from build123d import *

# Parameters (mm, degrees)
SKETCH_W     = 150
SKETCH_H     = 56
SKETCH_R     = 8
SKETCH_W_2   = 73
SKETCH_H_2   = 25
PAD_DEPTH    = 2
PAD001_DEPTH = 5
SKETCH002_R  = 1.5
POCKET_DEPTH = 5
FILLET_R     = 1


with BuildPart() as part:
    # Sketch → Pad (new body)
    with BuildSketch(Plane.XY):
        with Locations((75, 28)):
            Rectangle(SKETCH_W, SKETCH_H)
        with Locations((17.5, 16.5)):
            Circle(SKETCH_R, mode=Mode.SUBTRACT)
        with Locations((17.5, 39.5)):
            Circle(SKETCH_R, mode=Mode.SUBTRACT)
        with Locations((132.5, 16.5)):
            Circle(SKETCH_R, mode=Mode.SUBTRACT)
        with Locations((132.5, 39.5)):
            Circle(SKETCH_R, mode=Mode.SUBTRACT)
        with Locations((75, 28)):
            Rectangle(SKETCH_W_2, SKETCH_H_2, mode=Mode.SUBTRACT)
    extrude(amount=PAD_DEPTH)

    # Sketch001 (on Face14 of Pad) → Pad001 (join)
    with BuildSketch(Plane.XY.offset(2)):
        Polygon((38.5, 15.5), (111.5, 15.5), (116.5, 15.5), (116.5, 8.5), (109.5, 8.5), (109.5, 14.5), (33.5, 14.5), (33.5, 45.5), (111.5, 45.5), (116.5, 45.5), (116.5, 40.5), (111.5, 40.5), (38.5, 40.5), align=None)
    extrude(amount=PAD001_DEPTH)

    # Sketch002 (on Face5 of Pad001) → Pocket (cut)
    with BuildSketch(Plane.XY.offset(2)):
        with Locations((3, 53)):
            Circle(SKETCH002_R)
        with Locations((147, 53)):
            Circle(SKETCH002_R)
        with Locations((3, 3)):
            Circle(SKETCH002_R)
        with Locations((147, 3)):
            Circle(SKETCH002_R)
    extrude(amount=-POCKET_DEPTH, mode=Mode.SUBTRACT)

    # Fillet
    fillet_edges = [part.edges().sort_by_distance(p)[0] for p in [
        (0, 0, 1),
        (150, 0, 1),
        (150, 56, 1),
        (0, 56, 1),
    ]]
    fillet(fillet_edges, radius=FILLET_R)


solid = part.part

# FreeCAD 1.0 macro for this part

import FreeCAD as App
import Part
import Sketcher

V = App.Vector


def edges_at(feature, points):
    """Names of the edges that pass closest to the given points."""
    edges = feature.Shape.Edges
    near = lambda p: min(range(len(edges)), key=lambda i: edges[i].distToShape(Part.Vertex(*p))[0])
    return sorted({f"Edge{near(p) + 1}" for p in points})


def add_polygon(sketch, points):
    """Adds a closed chain of lines whose ends are joined by coincident constraints."""
    first, n = sketch.GeometryCount, len(points)
    for a, b in zip(points, points[1:] + points[:1]):
        sketch.addGeometry(Part.LineSegment(App.Vector(*a, 0), App.Vector(*b, 0)), False)
    for i in range(n):
        sketch.addConstraint(Sketcher.Constraint("Coincident", first + i, 2, first + (i + 1) % n, 1))

doc = App.newDocument("Part")
body = doc.addObject("PartDesign::Body", "Body")

# Sketch on XY plane
sketch1 = body.newObject("Sketcher::SketchObject", "Sketch")
sketch1.AttachmentSupport = (doc.getObject("XY_Plane"), [""])
sketch1.MapMode = "FlatFace"
add_polygon(sketch1, [(0, 56), (0, 0), (150, 0), (150, 56)])  # lines 0-3
sketch1.addGeometry(Part.Circle(V(17.5, 16.5, 0), V(0, 0, 1), 8), False)  # 4
sketch1.addGeometry(Part.Circle(V(132.5, 16.5, 0), V(0, 0, 1), 8), False)  # 5
sketch1.addGeometry(Part.Circle(V(17.5, 39.5, 0), V(0, 0, 1), 8), False)  # 6
add_polygon(sketch1, [(111.5, 15.5), (38.5, 15.5), (38.5, 40.5), (111.5, 40.5)])  # lines 7-10
sketch1.addGeometry(Part.Circle(V(132.5, 39.5, 0), V(0, 0, 1), 8), False)  # 11
sketch1.addConstraint([
    Sketcher.Constraint("Vertical", 0),
    Sketcher.Constraint("Horizontal", 1),
    Sketcher.Constraint("Vertical", 2),
    Sketcher.Constraint("Horizontal", 3),
    Sketcher.Constraint("Horizontal", 7),
    Sketcher.Constraint("Vertical", 8),
    Sketcher.Constraint("Horizontal", 9),
    Sketcher.Constraint("Vertical", 10),
    Sketcher.Constraint("Coincident", 0, 2, -1, 1),
    Sketcher.Constraint("Equal", 4, 5),
    Sketcher.Constraint("Equal", 5, 6),
    Sketcher.Constraint("Equal", 6, 11),
    Sketcher.Constraint("Horizontal", 4, 3, 5, 3),
    Sketcher.Constraint("Horizontal", 6, 3, 11, 3),
    Sketcher.Constraint("Vertical", 4, 3, 6, 3),
    Sketcher.Constraint("Vertical", 5, 3, 11, 3),
    Sketcher.Constraint("Diameter", 4, 16.0),
    Sketcher.Constraint("DistanceX", 1, 1, 1, 2, 150.0),
    Sketcher.Constraint("DistanceX", 7, 2, 7, 1, 73.0),
    Sketcher.Constraint("DistanceY", 0, 2, 0, 1, 56.0),
    Sketcher.Constraint("DistanceY", 8, 1, 8, 2, 25.0),
    Sketcher.Constraint("DistanceX", 4, 3, 5, 3, 115.0),
    Sketcher.Constraint("DistanceY", 4, 3, 6, 3, 23.0),
    Sketcher.Constraint("DistanceX", 4, 3, 7, 2, 21.0),
    Sketcher.Constraint("DistanceY", 7, 2, 4, 3, 1.0),
    Sketcher.Constraint("DistanceX", -1, 1, 4, 3, 17.5),
    Sketcher.Constraint("DistanceY", -1, 1, 4, 3, 16.5),
])
pad1 = body.newObject("PartDesign::Pad", "Pad")
pad1.Profile = sketch1
pad1.Length = 2

# Sketch on XY plane
sketch2 = body.newObject("Sketcher::SketchObject", "Sketch001")
sketch2.AttachmentSupport = (doc.getObject("XY_Plane"), [""])
sketch2.MapMode = "FlatFace"
sketch2.AttachmentOffset = App.Placement(V(0, 0, 2), App.Rotation())
add_polygon(sketch2, [(116.5, 15.5), (38.5, 15.5), (38.5, 40.5), (116.5, 40.5), (116.5, 45.5), (33.5, 45.5), (33.5, 14.5), (109.5, 14.5), (109.5, 8.5), (116.5, 8.5)])  # lines 0-9
sketch2.addConstraint([
    Sketcher.Constraint("Horizontal", 0),
    Sketcher.Constraint("Vertical", 1),
    Sketcher.Constraint("Horizontal", 2),
    Sketcher.Constraint("Vertical", 3),
    Sketcher.Constraint("Horizontal", 4),
    Sketcher.Constraint("Vertical", 5),
    Sketcher.Constraint("Horizontal", 6),
    Sketcher.Constraint("Vertical", 7),
    Sketcher.Constraint("Horizontal", 8),
    Sketcher.Constraint("Vertical", 9),
    Sketcher.Constraint("Vertical", 3, 2, 8, 2),
    Sketcher.Constraint("Equal", 8, 9),
    Sketcher.Constraint("DistanceX", 0, 2, 0, 1, 78.0),
    Sketcher.Constraint("DistanceX", 4, 2, 4, 1, 83.0),
    Sketcher.Constraint("DistanceX", 6, 1, 6, 2, 76.0),
    Sketcher.Constraint("DistanceY", 1, 1, 1, 2, 25.0),
    Sketcher.Constraint("DistanceY", 3, 1, 3, 2, 5.0),
    Sketcher.Constraint("DistanceY", 5, 2, 5, 1, 31.0),
    Sketcher.Constraint("DistanceX", -1, 1, 0, 2, 38.5),
    Sketcher.Constraint("DistanceY", -1, 1, 0, 2, 15.5),
])
pad2 = body.newObject("PartDesign::Pad", "Pad001")
pad2.Profile = sketch2
pad2.Length = 5

# Sketch on XY plane
sketch3 = body.newObject("Sketcher::SketchObject", "Sketch002")
sketch3.AttachmentSupport = (doc.getObject("XY_Plane"), [""])
sketch3.MapMode = "FlatFace"
sketch3.AttachmentOffset = App.Placement(V(0, 0, 2), App.Rotation())
sketch3.addGeometry([
    Part.Circle(V(3, 53, 0), V(0, 0, 1), 1.5),
    Part.Circle(V(147, 53, 0), V(0, 0, 1), 1.5),
    Part.Circle(V(3, 3, 0), V(0, 0, 1), 1.5),
    Part.Circle(V(147, 3, 0), V(0, 0, 1), 1.5),
], False)
sketch3.addConstraint([
    Sketcher.Constraint("Equal", 0, 1),
    Sketcher.Constraint("Equal", 1, 2),
    Sketcher.Constraint("Equal", 2, 3),
    Sketcher.Constraint("Horizontal", 0, 3, 1, 3),
    Sketcher.Constraint("Horizontal", 2, 3, 3, 3),
    Sketcher.Constraint("Vertical", 0, 3, 2, 3),
    Sketcher.Constraint("Vertical", 1, 3, 3, 3),
    Sketcher.Constraint("Diameter", 0, 3.0),
    Sketcher.Constraint("DistanceX", -1, 1, 0, 3, 3.0),
    Sketcher.Constraint("DistanceY", -1, 1, 0, 3, 53.0),
    Sketcher.Constraint("DistanceX", -1, 1, 1, 3, 147.0),
    Sketcher.Constraint("DistanceY", -1, 1, 2, 3, 3.0),
])
pocket1 = body.newObject("PartDesign::Pocket", "Pocket")
pocket1.Profile = sketch3
pocket1.Length = 5
doc.recompute()

fillet = body.newObject("PartDesign::Fillet", "Fillet")
fillet.Base = (pocket1, edges_at(pocket1, [
    (0, 0, 1),
    (150, 0, 1),
    (150, 56, 1),
    (0, 56, 1),
]))
fillet.Radius = 1

doc.recompute()
